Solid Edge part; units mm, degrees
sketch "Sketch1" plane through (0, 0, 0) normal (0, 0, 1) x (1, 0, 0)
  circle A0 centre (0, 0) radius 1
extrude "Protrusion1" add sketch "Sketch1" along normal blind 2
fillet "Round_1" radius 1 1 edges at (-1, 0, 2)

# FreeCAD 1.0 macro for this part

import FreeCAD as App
import Part
import Sketcher
from FreeCAD import Vector


def edges_at(feature, points):
    """Names of the edges that pass closest to the given points."""
    edges = feature.Shape.Edges
    near = lambda p: min(range(len(edges)), key=lambda i: edges[i].distToShape(Part.Vertex(*p))[0])
    return sorted({f"Edge{near(p) + 1}" for p in points})

doc = App.newDocument("Part")
params = doc.addObject("Spreadsheet::Sheet", "Params")
for row, (alias, value) in enumerate([
    ("sketch1_diameter", "2 mm"),
    ("pad1_length", "2 mm"),
    ("fillet_radius", "1 mm"),
], start=1):
    params.set(f"A{row}", alias)
    params.set(f"B{row}", "=" + value)
    params.setAlias(f"B{row}", alias)

body = doc.addObject("PartDesign::Body", "Body")

sketch1 = body.newObject("Sketcher::SketchObject", "Sketch")
sketch1.AttachmentSupport = (doc.getObject("XY_Plane"), [""])
sketch1.MapMode = "FlatFace"
sketch1.addGeometry(Part.Circle(Vector(0, 0, 0), Vector(0, 0, 1), 1), False)
sketch1.addConstraint(Sketcher.Constraint("Coincident", 0, 3, -1, 1))
sketch1.addConstraint(Sketcher.Constraint("Diameter", 0, 2.0))
sketch1.setExpression("Constraints[1]", "Params.sketch1_diameter")
pad1 = body.newObject("PartDesign::Pad", "Pad")
pad1.Profile = sketch1
pad1.setExpression("Length", "Params.pad1_length")
doc.recompute()

fillet = body.newObject("PartDesign::Fillet", "Fillet")
fillet.Base = (pad1, edges_at(pad1, [(-1, 0, 2)]))
fillet.setExpression("Radius", "Params.fillet_radius")

doc.recompute()
